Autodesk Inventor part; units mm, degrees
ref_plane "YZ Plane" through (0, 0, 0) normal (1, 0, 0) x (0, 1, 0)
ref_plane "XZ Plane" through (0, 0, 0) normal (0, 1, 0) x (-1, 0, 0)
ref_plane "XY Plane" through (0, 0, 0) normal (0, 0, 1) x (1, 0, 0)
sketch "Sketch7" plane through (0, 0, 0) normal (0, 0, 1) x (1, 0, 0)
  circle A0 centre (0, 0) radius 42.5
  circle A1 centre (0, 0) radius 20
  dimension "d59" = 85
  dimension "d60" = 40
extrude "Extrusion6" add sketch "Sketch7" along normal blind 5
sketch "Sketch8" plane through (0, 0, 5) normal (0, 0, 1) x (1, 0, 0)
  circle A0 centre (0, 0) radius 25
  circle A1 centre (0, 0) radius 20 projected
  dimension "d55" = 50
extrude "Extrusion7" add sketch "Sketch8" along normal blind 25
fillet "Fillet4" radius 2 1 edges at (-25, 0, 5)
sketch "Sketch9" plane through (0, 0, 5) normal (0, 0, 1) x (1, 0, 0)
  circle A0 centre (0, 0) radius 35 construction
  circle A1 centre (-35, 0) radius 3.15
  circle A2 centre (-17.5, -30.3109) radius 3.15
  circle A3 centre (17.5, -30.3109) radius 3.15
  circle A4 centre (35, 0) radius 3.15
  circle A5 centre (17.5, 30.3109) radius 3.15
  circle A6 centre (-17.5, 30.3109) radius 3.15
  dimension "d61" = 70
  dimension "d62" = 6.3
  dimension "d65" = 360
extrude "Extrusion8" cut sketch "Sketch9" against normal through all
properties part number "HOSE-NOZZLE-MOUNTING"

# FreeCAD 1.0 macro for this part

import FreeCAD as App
import Part
import Sketcher
from FreeCAD import Vector


def edges_at(feature, points):
    """Names of the edges that pass closest to the given points."""
    edges = feature.Shape.Edges
    near = lambda p: min(range(len(edges)), key=lambda i: edges[i].distToShape(Part.Vertex(*p))[0])
    return sorted({f"Edge{near(p) + 1}" for p in points})

doc = App.newDocument("Part")
body = doc.addObject("PartDesign::Body", "Body")

# Sketch on XY plane
sketch1 = body.newObject("Sketcher::SketchObject", "Sketch")
sketch1.AttachmentSupport = (doc.getObject("XY_Plane"), [""])
sketch1.MapMode = "FlatFace"
sketch1.addGeometry([
    Part.Circle(Vector(0, 0, 0), Vector(0, 0, 1), 42),
    Part.Circle(Vector(0, 0, 0), Vector(0, 0, 1), 20),
], False)
sketch1.addConstraint([
    Sketcher.Constraint("Coincident", 0, 3, -1, 1),
    Sketcher.Constraint("Coincident", 1, 3, -1, 1),
    Sketcher.Constraint("Diameter", 0, 85.0),
    Sketcher.Constraint("Diameter", 1, 40.0),
])
pad1 = body.newObject("PartDesign::Pad", "Pad")
pad1.Profile = sketch1
pad1.Length = 5

# Sketch on XY plane
sketch2 = body.newObject("Sketcher::SketchObject", "Sketch001")
sketch2.AttachmentSupport = (doc.getObject("XY_Plane"), [""])
sketch2.MapMode = "FlatFace"
sketch2.AttachmentOffset = App.Placement(Vector(0, 0, 5), App.Rotation())
sketch2.addGeometry([
    Part.Circle(Vector(0, 0, 0), Vector(0, 0, 1), 25),
    Part.Circle(Vector(0, 0, 0), Vector(0, 0, 1), 20),
], False)
sketch2.addConstraint([
    Sketcher.Constraint("Coincident", 0, 3, -1, 1),
    Sketcher.Constraint("Coincident", 1, 3, -1, 1),
    Sketcher.Constraint("Diameter", 0, 50.0),
    Sketcher.Constraint("Diameter", 1, 40.0),
])
pad2 = body.newObject("PartDesign::Pad", "Pad001")
pad2.Profile = sketch2
pad2.Length = 25
doc.recompute()

fillet = body.newObject("PartDesign::Fillet", "Fillet")
fillet.Base = (pad2, edges_at(pad2, [(-25, 0, 5)]))
fillet.Radius = 2

# Sketch on XY plane
sketch3 = body.newObject("Sketcher::SketchObject", "Sketch002")
sketch3.AttachmentSupport = (doc.getObject("XY_Plane"), [""])
sketch3.MapMode = "FlatFace"
sketch3.AttachmentOffset = App.Placement(Vector(0, 0, 5), App.Rotation())
sketch3.addGeometry([
    Part.Circle(Vector(-35, 0, 0), Vector(0, 0, 1), 3.1),  # 0
    Part.Circle(Vector(-17.5, -30.3, 0), Vector(0, 0, 1), 3.1),  # 1
    Part.Circle(Vector(17.5, -30.3, 0), Vector(0, 0, 1), 3.1),  # 2
    Part.Circle(Vector(35, 0, 0), Vector(0, 0, 1), 3.1),  # 3
    Part.Circle(Vector(17.5, 30.3, 0), Vector(0, 0, 1), 3.1),  # 4
    Part.Circle(Vector(-17.5, 30.3, 0), Vector(0, 0, 1), 3.1),  # 5
], False)
sketch3.addConstraint([
    Sketcher.Constraint("Equal", 0, 1),
    Sketcher.Constraint("Equal", 1, 2),
    Sketcher.Constraint("Equal", 2, 3),
    Sketcher.Constraint("Equal", 3, 4),
    Sketcher.Constraint("Equal", 4, 5),
    Sketcher.Constraint("Symmetric", 0, 3, 3, 3, -1, 1),
    Sketcher.Constraint("Symmetric", 1, 3, 4, 3, -1, 1),
    Sketcher.Constraint("Symmetric", 2, 3, 5, 3, -1, 1),
    Sketcher.Constraint("Symmetric", 1, 3, 2, 3, -2),
    Sketcher.Constraint("PointOnObject", 0, 3, -1),
    Sketcher.Constraint("Diameter", 0, 6.3),
    Sketcher.Constraint("DistanceX", 0, 3, 3, 3, 70.0),
    Sketcher.Constraint("DistanceX", 1, 3, 2, 3, 35.0),
    Sketcher.Constraint("DistanceY", 1, 3, -1, 1, 30.311),
])
pocket1 = body.newObject("PartDesign::Pocket", "Pocket")
pocket1.Profile = sketch3
pocket1.Type = "ThroughAll"

doc.recompute()
